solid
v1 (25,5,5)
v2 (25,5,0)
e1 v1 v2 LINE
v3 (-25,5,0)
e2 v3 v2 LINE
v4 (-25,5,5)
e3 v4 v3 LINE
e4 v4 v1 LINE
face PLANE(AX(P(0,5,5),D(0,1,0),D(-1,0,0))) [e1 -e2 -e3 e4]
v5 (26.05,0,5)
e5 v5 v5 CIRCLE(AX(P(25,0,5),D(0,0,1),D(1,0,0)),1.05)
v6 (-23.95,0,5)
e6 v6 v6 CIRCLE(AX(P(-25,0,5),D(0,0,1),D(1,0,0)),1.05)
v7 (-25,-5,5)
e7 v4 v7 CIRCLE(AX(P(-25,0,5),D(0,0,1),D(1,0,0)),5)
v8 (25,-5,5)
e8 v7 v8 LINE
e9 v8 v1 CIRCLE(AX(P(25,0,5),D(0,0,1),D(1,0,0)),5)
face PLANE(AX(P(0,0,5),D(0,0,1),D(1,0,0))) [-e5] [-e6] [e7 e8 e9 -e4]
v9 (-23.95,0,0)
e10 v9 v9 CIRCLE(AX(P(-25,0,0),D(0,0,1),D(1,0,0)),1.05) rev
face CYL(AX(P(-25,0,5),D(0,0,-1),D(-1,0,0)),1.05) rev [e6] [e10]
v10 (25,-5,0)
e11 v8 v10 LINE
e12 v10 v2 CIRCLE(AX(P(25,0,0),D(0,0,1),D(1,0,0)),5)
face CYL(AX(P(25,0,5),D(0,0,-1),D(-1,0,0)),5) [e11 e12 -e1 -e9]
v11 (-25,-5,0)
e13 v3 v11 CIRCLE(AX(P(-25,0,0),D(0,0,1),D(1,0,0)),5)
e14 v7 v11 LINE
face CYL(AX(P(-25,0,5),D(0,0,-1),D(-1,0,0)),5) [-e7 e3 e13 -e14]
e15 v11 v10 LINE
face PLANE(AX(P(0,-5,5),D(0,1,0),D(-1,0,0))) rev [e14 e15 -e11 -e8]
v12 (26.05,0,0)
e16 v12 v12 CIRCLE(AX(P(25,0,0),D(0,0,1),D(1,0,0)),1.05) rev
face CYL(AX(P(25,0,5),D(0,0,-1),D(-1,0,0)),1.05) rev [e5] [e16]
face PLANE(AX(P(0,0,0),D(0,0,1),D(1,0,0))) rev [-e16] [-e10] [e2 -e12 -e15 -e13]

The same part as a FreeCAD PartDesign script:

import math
import FreeCAD as App
import Part
import Sketcher
from FreeCAD import Vector
Q = App.Units.Quantity

doc = App.newDocument("Part")
params = doc.addObject("Spreadsheet::Sheet", "Params")
for row, (alias, value) in enumerate([
    ("sketch1_radius", "5 mm"),
    ("sketch1_width", "50 mm"),
    ("pad1_length", "5 mm"),
    ("sketch2_diameter", "2.1 mm"),
], start=1):
    params.set(f"A{row}", alias)
    params.set(f"B{row}", "=" + value)
    params.setAlias(f"B{row}", alias)

body = doc.addObject("PartDesign::Body", "Body")

sketch1 = body.newObject("Sketcher::SketchObject", "Sketch")
sketch1.AttachmentSupport = (doc.getObject("XY_Plane"), [""])
sketch1.MapMode = "FlatFace"
sketch1.addGeometry(Part.LineSegment(Vector(-25, -5, 0), Vector(25, -5, 0)), False)
sketch1.addGeometry(Part.ArcOfCircle(Part.Circle(Vector(25, 0, 0), Vector(0, 0, 1), 5), math.radians(-90), math.radians(0)), False)
sketch1.addGeometry(Part.ArcOfCircle(Part.Circle(Vector(25, 0, 0), Vector(0, 0, 1), 5), math.radians(0), math.radians(90)), False)
sketch1.addGeometry(Part.LineSegment(Vector(25, 5, 0), Vector(-25, 5, 0)), False)
sketch1.addGeometry(Part.ArcOfCircle(Part.Circle(Vector(-25, 0, 0), Vector(0, 0, 1), 5), math.radians(90), math.radians(270)), False)
sketch1.addConstraint(Sketcher.Constraint("Tangent", 0, 2, 1, 1))
sketch1.addConstraint(Sketcher.Constraint("Tangent", 1, 2, 2, 1))
sketch1.addConstraint(Sketcher.Constraint("Tangent", 2, 2, 3, 1))
sketch1.addConstraint(Sketcher.Constraint("Tangent", 3, 2, 4, 1))
sketch1.addConstraint(Sketcher.Constraint("Tangent", 4, 2, 0, 1))
sketch1.addConstraint(Sketcher.Constraint("Horizontal", 0))
sketch1.addConstraint(Sketcher.Constraint("Horizontal", 3))
sketch1.addConstraint(Sketcher.Constraint("Equal", 1, 2))
sketch1.addConstraint(Sketcher.Constraint("Symmetric", 1, 3, 4, 3, -1, 1))
sketch1.addConstraint(Sketcher.Constraint("PointOnObject", 1, 2, -1))
sketch1.addConstraint(Sketcher.Constraint("Radius", 1, Q("5 mm")))
sketch1.addConstraint(Sketcher.Constraint("DistanceX", 0, 1, 0, 2, Q("50 mm")))
sketch1.setExpression("Constraints[10]", "Params.sketch1_radius")
sketch1.setExpression("Constraints[11]", "Params.sketch1_width")
pad1 = body.newObject("PartDesign::Pad", "Pad")
pad1.Profile = sketch1
pad1.setExpression("Length", "Params.pad1_length")

sketch2 = body.newObject("Sketcher::SketchObject", "Sketch001")
sketch2.AttachmentSupport = (doc.getObject("XY_Plane"), [""])
sketch2.MapMode = "FlatFace"
sketch2.addGeometry(Part.Circle(Vector(25, 0, 0), Vector(0, 0, 1), 1.1), False)
sketch2.addGeometry(Part.Circle(Vector(-25, 0, 0), Vector(0, 0, 1), 1.1), False)
sketch2.addConstraint(Sketcher.Constraint("Equal", 0, 1))
sketch2.addConstraint(Sketcher.Constraint("Symmetric", 0, 3, 1, 3, -1, 1))
sketch2.addConstraint(Sketcher.Constraint("PointOnObject", 0, 3, -1))
sketch2.addConstraint(Sketcher.Constraint("Diameter", 0, Q("2.1 mm")))
sketch2.addConstraint(Sketcher.Constraint("DistanceX", -1, 1, 0, 3, Q("25 mm")))
sketch2.setExpression("Constraints[3]", "Params.sketch2_diameter")
pocket1 = body.newObject("PartDesign::Pocket", "Pocket")
pocket1.Profile = sketch2
pocket1.Type = "ThroughAll"
pocket1.Midplane = True

doc.recompute()
